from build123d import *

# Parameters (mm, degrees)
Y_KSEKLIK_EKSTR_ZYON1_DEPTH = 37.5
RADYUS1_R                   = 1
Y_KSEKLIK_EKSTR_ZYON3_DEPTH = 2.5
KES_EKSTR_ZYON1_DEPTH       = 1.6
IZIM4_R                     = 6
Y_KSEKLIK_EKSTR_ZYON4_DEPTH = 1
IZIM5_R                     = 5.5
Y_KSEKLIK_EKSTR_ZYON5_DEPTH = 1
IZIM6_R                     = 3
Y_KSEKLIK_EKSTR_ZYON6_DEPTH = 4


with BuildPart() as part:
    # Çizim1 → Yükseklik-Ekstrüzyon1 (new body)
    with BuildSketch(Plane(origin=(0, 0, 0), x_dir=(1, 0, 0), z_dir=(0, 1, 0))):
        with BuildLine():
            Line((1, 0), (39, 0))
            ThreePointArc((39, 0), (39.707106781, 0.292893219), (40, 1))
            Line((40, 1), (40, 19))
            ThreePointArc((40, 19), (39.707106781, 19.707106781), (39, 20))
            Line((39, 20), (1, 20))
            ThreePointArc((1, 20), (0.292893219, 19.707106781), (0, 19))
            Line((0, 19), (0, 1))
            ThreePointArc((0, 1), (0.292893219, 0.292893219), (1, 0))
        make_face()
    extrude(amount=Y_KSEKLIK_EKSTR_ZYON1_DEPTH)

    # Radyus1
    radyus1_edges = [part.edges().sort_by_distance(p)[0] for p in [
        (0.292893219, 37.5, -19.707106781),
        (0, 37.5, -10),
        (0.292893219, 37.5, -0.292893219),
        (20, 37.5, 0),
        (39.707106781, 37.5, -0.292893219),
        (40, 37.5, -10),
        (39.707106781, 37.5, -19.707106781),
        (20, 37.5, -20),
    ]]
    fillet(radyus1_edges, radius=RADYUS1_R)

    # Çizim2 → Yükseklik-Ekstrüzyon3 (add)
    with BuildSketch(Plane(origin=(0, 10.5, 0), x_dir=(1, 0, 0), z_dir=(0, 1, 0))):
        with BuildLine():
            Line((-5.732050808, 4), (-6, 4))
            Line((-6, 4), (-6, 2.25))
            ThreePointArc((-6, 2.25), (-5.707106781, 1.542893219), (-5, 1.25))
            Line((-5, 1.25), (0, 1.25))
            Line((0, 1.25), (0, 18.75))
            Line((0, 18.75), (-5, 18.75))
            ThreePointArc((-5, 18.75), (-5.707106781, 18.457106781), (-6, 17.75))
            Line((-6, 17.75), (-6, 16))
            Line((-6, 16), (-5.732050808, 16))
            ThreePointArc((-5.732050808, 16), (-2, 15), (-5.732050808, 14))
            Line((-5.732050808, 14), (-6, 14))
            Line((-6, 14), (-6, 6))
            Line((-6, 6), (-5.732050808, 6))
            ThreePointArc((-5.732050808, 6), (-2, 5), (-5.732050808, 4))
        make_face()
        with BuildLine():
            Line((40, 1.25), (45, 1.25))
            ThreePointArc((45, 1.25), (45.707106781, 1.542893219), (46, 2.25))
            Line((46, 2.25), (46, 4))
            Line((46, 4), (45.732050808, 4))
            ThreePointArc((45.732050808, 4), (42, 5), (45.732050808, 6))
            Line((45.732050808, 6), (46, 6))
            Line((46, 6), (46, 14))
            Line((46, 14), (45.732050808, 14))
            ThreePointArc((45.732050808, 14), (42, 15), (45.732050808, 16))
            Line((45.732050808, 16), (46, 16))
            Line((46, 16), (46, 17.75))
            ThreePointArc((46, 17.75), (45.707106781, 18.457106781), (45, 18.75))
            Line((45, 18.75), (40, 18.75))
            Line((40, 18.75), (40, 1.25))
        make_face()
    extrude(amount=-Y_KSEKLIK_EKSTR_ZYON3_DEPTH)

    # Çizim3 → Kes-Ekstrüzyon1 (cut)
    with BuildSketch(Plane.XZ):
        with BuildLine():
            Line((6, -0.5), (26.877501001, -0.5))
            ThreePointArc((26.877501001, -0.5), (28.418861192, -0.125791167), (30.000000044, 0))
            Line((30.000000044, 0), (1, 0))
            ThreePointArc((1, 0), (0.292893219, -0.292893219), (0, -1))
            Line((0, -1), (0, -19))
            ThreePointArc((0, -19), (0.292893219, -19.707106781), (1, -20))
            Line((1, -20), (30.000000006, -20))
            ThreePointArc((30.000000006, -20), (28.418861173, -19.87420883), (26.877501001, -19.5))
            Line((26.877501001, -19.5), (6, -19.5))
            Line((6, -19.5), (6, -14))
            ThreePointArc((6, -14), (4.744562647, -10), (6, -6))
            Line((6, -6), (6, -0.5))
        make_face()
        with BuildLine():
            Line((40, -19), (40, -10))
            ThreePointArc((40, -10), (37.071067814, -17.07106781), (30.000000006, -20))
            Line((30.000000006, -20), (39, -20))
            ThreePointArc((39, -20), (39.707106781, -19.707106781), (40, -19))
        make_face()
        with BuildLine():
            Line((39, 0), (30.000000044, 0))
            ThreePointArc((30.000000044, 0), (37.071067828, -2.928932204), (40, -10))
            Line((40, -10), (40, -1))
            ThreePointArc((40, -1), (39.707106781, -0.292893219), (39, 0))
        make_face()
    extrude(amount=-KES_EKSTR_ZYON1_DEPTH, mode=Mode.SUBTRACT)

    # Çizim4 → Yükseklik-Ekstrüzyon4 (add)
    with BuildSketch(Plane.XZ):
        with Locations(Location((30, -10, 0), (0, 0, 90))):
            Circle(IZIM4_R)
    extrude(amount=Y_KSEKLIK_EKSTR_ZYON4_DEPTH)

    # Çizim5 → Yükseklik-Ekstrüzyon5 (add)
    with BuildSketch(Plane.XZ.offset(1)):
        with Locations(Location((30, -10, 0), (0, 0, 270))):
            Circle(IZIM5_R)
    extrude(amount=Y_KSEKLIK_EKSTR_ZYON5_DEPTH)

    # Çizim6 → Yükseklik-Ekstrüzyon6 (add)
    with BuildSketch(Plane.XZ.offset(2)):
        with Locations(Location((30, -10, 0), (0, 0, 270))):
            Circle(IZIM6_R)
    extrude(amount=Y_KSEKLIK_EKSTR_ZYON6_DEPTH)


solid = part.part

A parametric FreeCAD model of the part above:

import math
import FreeCAD as App
import Part
import Sketcher
Q = App.Units.Quantity


def edges_at(feature, points):
    """Names of the edges that pass closest to the given points."""
    edges = feature.Shape.Edges
    near = lambda p: min(range(len(edges)), key=lambda i: edges[i].distToShape(Part.Vertex(*p))[0])
    return sorted({f"Edge{near(p) + 1}" for p in points})

doc = App.newDocument("Part")
body = doc.addObject("PartDesign::Body", "Body")

sketch1 = body.newObject("Sketcher::SketchObject", "Sketch")
sketch1.AttachmentSupport = (doc.getObject("XZ_Plane"), [""])
sketch1.MapMode = "FlatFace"
sketch1.addGeometry([
    Part.LineSegment(App.Vector(1, 0, 0), App.Vector(39, 0, 0)),
    Part.ArcOfCircle(Part.Circle(App.Vector(39, -1, 0), App.Vector(0, 0, 1), 1), math.radians(0), math.radians(90)),
    Part.LineSegment(App.Vector(40, -1, 0), App.Vector(40, -19, 0)),
    Part.ArcOfCircle(Part.Circle(App.Vector(39, -19, 0), App.Vector(0, 0, 1), 1), math.radians(-90), math.radians(0)),
    Part.LineSegment(App.Vector(39, -20, 0), App.Vector(1, -20, 0)),
    Part.ArcOfCircle(Part.Circle(App.Vector(1, -19, 0), App.Vector(0, 0, 1), 1), math.radians(-180), math.radians(-90)),
    Part.LineSegment(App.Vector(0, -19, 0), App.Vector(0, -1, 0)),
    Part.ArcOfCircle(Part.Circle(App.Vector(1, -1, 0), App.Vector(0, 0, 1), 1), math.radians(90), math.radians(180)),
], False)
sketch1.addConstraint([
    Sketcher.Constraint("Tangent", 0, 2, 1, 2),
    Sketcher.Constraint("Tangent", 1, 1, 2, 1),
    Sketcher.Constraint("Tangent", 2, 2, 3, 2),
    Sketcher.Constraint("Tangent", 3, 1, 4, 1),
    Sketcher.Constraint("Tangent", 4, 2, 5, 2),
    Sketcher.Constraint("Tangent", 5, 1, 6, 1),
    Sketcher.Constraint("Tangent", 6, 2, 7, 2),
    Sketcher.Constraint("Tangent", 7, 1, 0, 1),
    Sketcher.Constraint("Horizontal", 0),
    Sketcher.Constraint("Vertical", 2),
    Sketcher.Constraint("Horizontal", 4),
    Sketcher.Constraint("Vertical", 6),
    Sketcher.Constraint("Equal", 1, 3),
    Sketcher.Constraint("Equal", 3, 5),
    Sketcher.Constraint("Equal", 5, 7),
    Sketcher.Constraint("PointOnObject", 0, 2, -1),
    Sketcher.Constraint("PointOnObject", 5, 1, -2),
    Sketcher.Constraint("Radius", 1, Q("1 mm")),
    Sketcher.Constraint("DistanceX", 0, 1, 0, 2, Q("38 mm")),
    Sketcher.Constraint("DistanceY", 2, 2, 2, 1, Q("18 mm")),
])
pad1 = body.newObject("PartDesign::Pad", "Pad")
pad1.Profile = sketch1
pad1.Length = 37.5
pad1.Reversed = True
doc.recompute()

fillet = body.newObject("PartDesign::Fillet", "Fillet")
fillet.Base = (pad1, edges_at(pad1, [
    (0.293, 37.5, -19.707),
    (0, 37.5, -10),
    (0.293, 37.5, -0.293),
    (20, 37.5, 0),
    (39.707, 37.5, -0.293),
    (40, 37.5, -10),
    (39.707, 37.5, -19.707),
    (20, 37.5, -20),
]))
fillet.Radius = 1

sketch2 = body.newObject("Sketcher::SketchObject", "Sketch001")
sketch2.AttachmentSupport = (doc.getObject("XZ_Plane"), [""])
sketch2.MapMode = "FlatFace"
sketch2.AttachmentOffset = App.Placement(App.Vector(0, 0, -10.5), App.Rotation())
sketch2.addGeometry([
    Part.LineSegment(App.Vector(-5.732051, -4, 0), App.Vector(-6, -4, 0)),
    Part.LineSegment(App.Vector(-6, -4, 0), App.Vector(-6, -2.25, 0)),
    Part.ArcOfCircle(Part.Circle(App.Vector(-5, -2.25, 0), App.Vector(0, 0, 1), 1), math.radians(90), math.radians(180)),
    Part.LineSegment(App.Vector(-5, -1.25, 0), App.Vector(0, -1.25, 0)),
    Part.LineSegment(App.Vector(0, -1.25, 0), App.Vector(0, -18.75, 0)),
    Part.LineSegment(App.Vector(0, -18.75, 0), App.Vector(-5, -18.75, 0)),
    Part.ArcOfCircle(Part.Circle(App.Vector(-5, -17.75, 0), App.Vector(0, 0, 1), 1), math.radians(-180), math.radians(-90)),
    Part.LineSegment(App.Vector(-6, -17.75, 0), App.Vector(-6, -16, 0)),
    Part.LineSegment(App.Vector(-6, -16, 0), App.Vector(-5.732051, -16, 0)),
    Part.ArcOfCircle(Part.Circle(App.Vector(-4, -15, 0), App.Vector(0, 0, 1), 2), math.radians(-150), math.radians(150)),
    Part.LineSegment(App.Vector(-5.732051, -14, 0), App.Vector(-6, -14, 0)),
    Part.LineSegment(App.Vector(-6, -14, 0), App.Vector(-6, -6, 0)),
    Part.LineSegment(App.Vector(-6, -6, 0), App.Vector(-5.732051, -6, 0)),
    Part.ArcOfCircle(Part.Circle(App.Vector(-4, -5, 0), App.Vector(0, 0, 1), 2), math.radians(-150), math.radians(150)),
    Part.LineSegment(App.Vector(40, -1.25, 0), App.Vector(45, -1.25, 0)),
    Part.ArcOfCircle(Part.Circle(App.Vector(45, -2.25, 0), App.Vector(0, 0, 1), 1), math.radians(0), math.radians(90)),
    Part.LineSegment(App.Vector(46, -2.25, 0), App.Vector(46, -4, 0)),
    Part.LineSegment(App.Vector(46, -4, 0), App.Vector(45.732051, -4, 0)),
    Part.ArcOfCircle(Part.Circle(App.Vector(44, -5, 0), App.Vector(0, 0, 1), 2), math.radians(30), math.radians(330)),
    Part.LineSegment(App.Vector(45.732051, -6, 0), App.Vector(46, -6, 0)),
    Part.LineSegment(App.Vector(46, -6, 0), App.Vector(46, -14, 0)),
    Part.LineSegment(App.Vector(46, -14, 0), App.Vector(45.732051, -14, 0)),
    Part.ArcOfCircle(Part.Circle(App.Vector(44, -15, 0), App.Vector(0, 0, 1), 2), math.radians(30), math.radians(330)),
    Part.LineSegment(App.Vector(45.732051, -16, 0), App.Vector(46, -16, 0)),
    Part.LineSegment(App.Vector(46, -16, 0), App.Vector(46, -17.75, 0)),
    Part.ArcOfCircle(Part.Circle(App.Vector(45, -17.75, 0), App.Vector(0, 0, 1), 1), math.radians(-90), math.radians(0)),
    Part.LineSegment(App.Vector(45, -18.75, 0), App.Vector(40, -18.75, 0)),
    Part.LineSegment(App.Vector(40, -18.75, 0), App.Vector(40, -1.25, 0)),
], False)
sketch2.addConstraint([
    Sketcher.Constraint("Coincident", 0, 2, 1, 1),
    Sketcher.Constraint("Tangent", 1, 2, 2, 2),
    Sketcher.Constraint("Tangent", 2, 1, 3, 1),
    Sketcher.Constraint("Coincident", 3, 2, 4, 1),
    Sketcher.Constraint("Coincident", 4, 2, 5, 1),
    Sketcher.Constraint("Tangent", 5, 2, 6, 2),
    Sketcher.Constraint("Tangent", 6, 1, 7, 1),
    Sketcher.Constraint("Coincident", 7, 2, 8, 1),
    Sketcher.Constraint("Coincident", 8, 2, 9, 1),
    Sketcher.Constraint("Coincident", 9, 2, 10, 1),
    Sketcher.Constraint("Coincident", 10, 2, 11, 1),
    Sketcher.Constraint("Coincident", 11, 2, 12, 1),
    Sketcher.Constraint("Coincident", 12, 2, 13, 1),
    Sketcher.Constraint("Coincident", 13, 2, 0, 1),
    Sketcher.Constraint("Tangent", 14, 2, 15, 2),
    Sketcher.Constraint("Tangent", 15, 1, 16, 1),
    Sketcher.Constraint("Coincident", 16, 2, 17, 1),
    Sketcher.Constraint("Coincident", 17, 2, 18, 1),
    Sketcher.Constraint("Coincident", 18, 2, 19, 1),
    Sketcher.Constraint("Coincident", 19, 2, 20, 1),
    Sketcher.Constraint("Coincident", 20, 2, 21, 1),
    Sketcher.Constraint("Coincident", 21, 2, 22, 1),
    Sketcher.Constraint("Coincident", 22, 2, 23, 1),
    Sketcher.Constraint("Coincident", 23, 2, 24, 1),
    Sketcher.Constraint("Tangent", 24, 2, 25, 2),
    Sketcher.Constraint("Tangent", 25, 1, 26, 1),
    Sketcher.Constraint("Coincident", 26, 2, 27, 1),
    Sketcher.Constraint("Coincident", 27, 2, 14, 1),
    Sketcher.Constraint("Horizontal", 0),
    Sketcher.Constraint("Vertical", 1),
    Sketcher.Constraint("Horizontal", 3),
    Sketcher.Constraint("Vertical", 4),
    Sketcher.Constraint("Horizontal", 5),
    Sketcher.Constraint("Vertical", 7),
    Sketcher.Constraint("Horizontal", 8),
    Sketcher.Constraint("Horizontal", 10),
    Sketcher.Constraint("Vertical", 11),
    Sketcher.Constraint("Horizontal", 12),
    Sketcher.Constraint("Horizontal", 14),
    Sketcher.Constraint("Vertical", 16),
    Sketcher.Constraint("Horizontal", 17),
    Sketcher.Constraint("Horizontal", 19),
    Sketcher.Constraint("Vertical", 20),
    Sketcher.Constraint("Horizontal", 21),
    Sketcher.Constraint("Horizontal", 23),
    Sketcher.Constraint("Vertical", 24),
    Sketcher.Constraint("Horizontal", 26),
    Sketcher.Constraint("Vertical", 27),
    Sketcher.Constraint("Equal", 2, 6),
    Sketcher.Constraint("Equal", 9, 13),
    Sketcher.Constraint("Equal", 6, 15),
    Sketcher.Constraint("Equal", 13, 18),
    Sketcher.Constraint("Equal", 18, 22),
    Sketcher.Constraint("Equal", 15, 25),
    Sketcher.Constraint("PointOnObject", 3, 2, -2),
    Sketcher.Constraint("Horizontal", 2, 3, 15, 3),
    Sketcher.Constraint("Horizontal", 13, 3, 18, 3),
    Sketcher.Constraint("Horizontal", 9, 3, 22, 3),
    Sketcher.Constraint("Horizontal", 6, 3, 25, 3),
    Sketcher.Constraint("Horizontal", 13, 2, 16, 2),
    Sketcher.Constraint("Horizontal", 12, 2, 18, 2),
    Sketcher.Constraint("Horizontal", 10, 2, 20, 2),
    Sketcher.Constraint("Horizontal", 8, 2, 22, 2),
    Sketcher.Constraint("Vertical", 2, 3, 6, 3),
    Sketcher.Constraint("Vertical", 9, 3, 13, 3),
    Sketcher.Constraint("Vertical", 18, 3, 22, 3),
    Sketcher.Constraint("Vertical", 15, 3, 25, 3),
    Sketcher.Constraint("Vertical", 8, 2, 9, 2),
    Sketcher.Constraint("Vertical", 7, 2, 10, 2),
    Sketcher.Constraint("Vertical", 9, 2, 12, 2),
    Sketcher.Constraint("Vertical", 12, 2, 13, 2),
    Sketcher.Constraint("Vertical", 16, 2, 19, 2),
    Sketcher.Constraint("Equal", 5, 14),
    Sketcher.Constraint("Equal", 12, 17),
    Sketcher.Constraint("Equal", 1, 7),
    Sketcher.Constraint("Radius", 2, Q("1 mm")),
    Sketcher.Constraint("Radius", 9, Q("2 mm")),
    Sketcher.Constraint("DistanceX", 3, 1, 3, 2, Q("5 mm")),
    Sketcher.Constraint("DistanceY", 11, 1, 11, 2, Q("8 mm")),
    Sketcher.Constraint("DistanceY", 4, 2, 4, 1, Q("17.5 mm")),
    Sketcher.Constraint("DistanceX", 9, 3, -1, 1, Q("4 mm")),
    Sketcher.Constraint("DistanceY", 9, 3, -1, 1, Q("15 mm")),
    Sketcher.Constraint("DistanceY", 13, 3, -1, 1, Q("5 mm")),
    Sketcher.Constraint("DistanceX", -1, 1, 15, 3, Q("45 mm")),
])
pad2 = body.newObject("PartDesign::Pad", "Pad001")
pad2.Profile = sketch2
pad2.Length = 2.5

sketch3 = body.newObject("Sketcher::SketchObject", "Sketch002")
sketch3.AttachmentSupport = (doc.getObject("XZ_Plane"), [""])
sketch3.MapMode = "FlatFace"
sketch3.addGeometry([
    Part.LineSegment(App.Vector(6, -0.5, 0), App.Vector(26.877501, -0.5, 0)),
    Part.ArcOfCircle(Part.Circle(App.Vector(30, -10, 0), App.Vector(0, 0, 1), 10), math.radians(90), math.radians(108.194872)),
    Part.LineSegment(App.Vector(30, 0, 0), App.Vector(1, 0, 0)),
    Part.ArcOfCircle(Part.Circle(App.Vector(1, -1, 0), App.Vector(0, 0, 1), 1), math.radians(90), math.radians(180)),
    Part.LineSegment(App.Vector(0, -1, 0), App.Vector(0, -19, 0)),
    Part.ArcOfCircle(Part.Circle(App.Vector(1, -19, 0), App.Vector(0, 0, 1), 1), math.radians(-180), math.radians(-90)),
    Part.LineSegment(App.Vector(1, -20, 0), App.Vector(30, -20, 0)),
    Part.ArcOfCircle(Part.Circle(App.Vector(30, -10, 0), App.Vector(0, 0, 1), 10), math.radians(-108.194872), math.radians(-90)),
    Part.LineSegment(App.Vector(26.877501, -19.5, 0), App.Vector(6, -19.5, 0)),
    Part.LineSegment(App.Vector(6, -19.5, 0), App.Vector(6, -14, 0)),
    Part.ArcOfCircle(Part.Circle(App.Vector(11.744563, -10, 0), App.Vector(0, 0, 1), 7), math.radians(145.150095), math.radians(214.849905)),
    Part.LineSegment(App.Vector(6, -6, 0), App.Vector(6, -0.5, 0)),
    Part.LineSegment(App.Vector(40, -19, 0), App.Vector(40, -10, 0)),
    Part.ArcOfCircle(Part.Circle(App.Vector(30, -10, 0), App.Vector(0, 0, 1), 10), math.radians(-90), math.radians(0)),
    Part.LineSegment(App.Vector(30, -20, 0), App.Vector(39, -20, 0)),
    Part.ArcOfCircle(Part.Circle(App.Vector(39, -19, 0), App.Vector(0, 0, 1), 1), math.radians(-90), math.radians(0)),
    Part.LineSegment(App.Vector(39, 0, 0), App.Vector(30, 0, 0)),
    Part.ArcOfCircle(Part.Circle(App.Vector(30, -10, 0), App.Vector(0, 0, 1), 10), math.radians(0), math.radians(90)),
    Part.LineSegment(App.Vector(40, -10, 0), App.Vector(40, -1, 0)),
    Part.ArcOfCircle(Part.Circle(App.Vector(39, -1, 0), App.Vector(0, 0, 1), 1), math.radians(0), math.radians(90)),
], False)
sketch3.addConstraint([
    Sketcher.Constraint("Coincident", 0, 2, 1, 2),
    Sketcher.Constraint("Tangent", 1, 1, 2, 1),
    Sketcher.Constraint("Tangent", 2, 2, 3, 1),
    Sketcher.Constraint("Tangent", 3, 2, 4, 1),
    Sketcher.Constraint("Tangent", 4, 2, 5, 1),
    Sketcher.Constraint("Tangent", 5, 2, 6, 1),
    Sketcher.Constraint("Tangent", 6, 2, 7, 2),
    Sketcher.Constraint("Coincident", 7, 1, 8, 1),
    Sketcher.Constraint("Coincident", 8, 2, 9, 1),
    Sketcher.Constraint("Coincident", 9, 2, 10, 2),
    Sketcher.Constraint("Coincident", 10, 1, 11, 1),
    Sketcher.Constraint("Coincident", 11, 2, 0, 1),
    Sketcher.Constraint("Tangent", 12, 2, 13, 2),
    Sketcher.Constraint("Tangent", 13, 1, 14, 1),
    Sketcher.Constraint("Tangent", 14, 2, 15, 1),
    Sketcher.Constraint("Tangent", 15, 2, 12, 1),
    Sketcher.Constraint("Tangent", 16, 2, 17, 2),
    Sketcher.Constraint("Tangent", 17, 1, 18, 1),
    Sketcher.Constraint("Tangent", 18, 2, 19, 1),
    Sketcher.Constraint("Tangent", 19, 2, 16, 1),
    Sketcher.Constraint("Horizontal", 0),
    Sketcher.Constraint("Horizontal", 2),
    Sketcher.Constraint("Vertical", 4),
    Sketcher.Constraint("Horizontal", 6),
    Sketcher.Constraint("Horizontal", 8),
    Sketcher.Constraint("Vertical", 9),
    Sketcher.Constraint("Vertical", 11),
    Sketcher.Constraint("Vertical", 12),
    Sketcher.Constraint("Horizontal", 14),
    Sketcher.Constraint("Horizontal", 16),
    Sketcher.Constraint("Vertical", 18),
    Sketcher.Constraint("Coincident", 7, 3, 1, 3),
    Sketcher.Constraint("Coincident", 13, 3, 1, 3),
    Sketcher.Constraint("Coincident", 17, 3, 1, 3),
    Sketcher.Constraint("Equal", 3, 5),
    Sketcher.Constraint("Equal", 1, 7),
    Sketcher.Constraint("Equal", 7, 13),
    Sketcher.Constraint("Equal", 5, 15),
    Sketcher.Constraint("Equal", 13, 17),
    Sketcher.Constraint("Equal", 15, 19),
    Sketcher.Constraint("PointOnObject", 1, 1, -1),
    Sketcher.Constraint("PointOnObject", 3, 2, -2),
    Sketcher.Constraint("Horizontal", 7, 3, 10, 3),
    Sketcher.Constraint("Vertical", 0, 2, 7, 1),
    Sketcher.Constraint("Vertical", 9, 2, 10, 1),
    Sketcher.Constraint("Radius", 1, Q("10 mm")),
    Sketcher.Constraint("Radius", 3, Q("1 mm")),
    Sketcher.Constraint("Radius", 10, Q("7 mm")),
    Sketcher.Constraint("DistanceX", 2, 2, 2, 1, Q("29 mm")),
    Sketcher.Constraint("DistanceY", 9, 1, 9, 2, Q("5.5 mm")),
    Sketcher.Constraint("DistanceX", -1, 1, 8, 2, Q("6 mm")),
    Sketcher.Constraint("DistanceY", 9, 2, -1, 1, Q("14 mm")),
])
pocket1 = body.newObject("PartDesign::Pocket", "Pocket")
pocket1.Profile = sketch3
pocket1.Length = 1.6

sketch4 = body.newObject("Sketcher::SketchObject", "Sketch003")
sketch4.AttachmentSupport = (doc.getObject("XZ_Plane"), [""])
sketch4.MapMode = "FlatFace"
sketch4.addGeometry(Part.Circle(App.Vector(30, -10, 0), App.Vector(0, 0, 1), 6), False)
sketch4.addConstraint([
    Sketcher.Constraint("Diameter", 0, Q("12 mm")),
    Sketcher.Constraint("DistanceX", -1, 1, 0, 3, Q("30 mm")),
    Sketcher.Constraint("DistanceY", 0, 3, -1, 1, Q("10 mm")),
])
pad3 = body.newObject("PartDesign::Pad", "Pad002")
pad3.Profile = sketch4
pad3.Length = 1

sketch5 = body.newObject("Sketcher::SketchObject", "Sketch004")
sketch5.AttachmentSupport = (doc.getObject("XZ_Plane"), [""])
sketch5.MapMode = "FlatFace"
sketch5.AttachmentOffset = App.Placement(App.Vector(0, 0, 1), App.Rotation())
sketch5.addGeometry(Part.Circle(App.Vector(30, -10, 0), App.Vector(0, 0, 1), 5.5), False)
sketch5.addConstraint([
    Sketcher.Constraint("Diameter", 0, Q("11 mm")),
    Sketcher.Constraint("DistanceX", -1, 1, 0, 3, Q("30 mm")),
    Sketcher.Constraint("DistanceY", 0, 3, -1, 1, Q("10 mm")),
])
pad4 = body.newObject("PartDesign::Pad", "Pad003")
pad4.Profile = sketch5
pad4.Length = 1

sketch6 = body.newObject("Sketcher::SketchObject", "Sketch005")
sketch6.AttachmentSupport = (doc.getObject("XZ_Plane"), [""])
sketch6.MapMode = "FlatFace"
sketch6.AttachmentOffset = App.Placement(App.Vector(0, 0, 2), App.Rotation())
sketch6.addGeometry(Part.Circle(App.Vector(30, -10, 0), App.Vector(0, 0, 1), 3), False)
sketch6.addConstraint([
    Sketcher.Constraint("Diameter", 0, Q("6 mm")),
    Sketcher.Constraint("DistanceX", -1, 1, 0, 3, Q("30 mm")),
    Sketcher.Constraint("DistanceY", 0, 3, -1, 1, Q("10 mm")),
])
pad5 = body.newObject("PartDesign::Pad", "Pad004")
pad5.Profile = sketch6
pad5.Length = 4

doc.recompute()
